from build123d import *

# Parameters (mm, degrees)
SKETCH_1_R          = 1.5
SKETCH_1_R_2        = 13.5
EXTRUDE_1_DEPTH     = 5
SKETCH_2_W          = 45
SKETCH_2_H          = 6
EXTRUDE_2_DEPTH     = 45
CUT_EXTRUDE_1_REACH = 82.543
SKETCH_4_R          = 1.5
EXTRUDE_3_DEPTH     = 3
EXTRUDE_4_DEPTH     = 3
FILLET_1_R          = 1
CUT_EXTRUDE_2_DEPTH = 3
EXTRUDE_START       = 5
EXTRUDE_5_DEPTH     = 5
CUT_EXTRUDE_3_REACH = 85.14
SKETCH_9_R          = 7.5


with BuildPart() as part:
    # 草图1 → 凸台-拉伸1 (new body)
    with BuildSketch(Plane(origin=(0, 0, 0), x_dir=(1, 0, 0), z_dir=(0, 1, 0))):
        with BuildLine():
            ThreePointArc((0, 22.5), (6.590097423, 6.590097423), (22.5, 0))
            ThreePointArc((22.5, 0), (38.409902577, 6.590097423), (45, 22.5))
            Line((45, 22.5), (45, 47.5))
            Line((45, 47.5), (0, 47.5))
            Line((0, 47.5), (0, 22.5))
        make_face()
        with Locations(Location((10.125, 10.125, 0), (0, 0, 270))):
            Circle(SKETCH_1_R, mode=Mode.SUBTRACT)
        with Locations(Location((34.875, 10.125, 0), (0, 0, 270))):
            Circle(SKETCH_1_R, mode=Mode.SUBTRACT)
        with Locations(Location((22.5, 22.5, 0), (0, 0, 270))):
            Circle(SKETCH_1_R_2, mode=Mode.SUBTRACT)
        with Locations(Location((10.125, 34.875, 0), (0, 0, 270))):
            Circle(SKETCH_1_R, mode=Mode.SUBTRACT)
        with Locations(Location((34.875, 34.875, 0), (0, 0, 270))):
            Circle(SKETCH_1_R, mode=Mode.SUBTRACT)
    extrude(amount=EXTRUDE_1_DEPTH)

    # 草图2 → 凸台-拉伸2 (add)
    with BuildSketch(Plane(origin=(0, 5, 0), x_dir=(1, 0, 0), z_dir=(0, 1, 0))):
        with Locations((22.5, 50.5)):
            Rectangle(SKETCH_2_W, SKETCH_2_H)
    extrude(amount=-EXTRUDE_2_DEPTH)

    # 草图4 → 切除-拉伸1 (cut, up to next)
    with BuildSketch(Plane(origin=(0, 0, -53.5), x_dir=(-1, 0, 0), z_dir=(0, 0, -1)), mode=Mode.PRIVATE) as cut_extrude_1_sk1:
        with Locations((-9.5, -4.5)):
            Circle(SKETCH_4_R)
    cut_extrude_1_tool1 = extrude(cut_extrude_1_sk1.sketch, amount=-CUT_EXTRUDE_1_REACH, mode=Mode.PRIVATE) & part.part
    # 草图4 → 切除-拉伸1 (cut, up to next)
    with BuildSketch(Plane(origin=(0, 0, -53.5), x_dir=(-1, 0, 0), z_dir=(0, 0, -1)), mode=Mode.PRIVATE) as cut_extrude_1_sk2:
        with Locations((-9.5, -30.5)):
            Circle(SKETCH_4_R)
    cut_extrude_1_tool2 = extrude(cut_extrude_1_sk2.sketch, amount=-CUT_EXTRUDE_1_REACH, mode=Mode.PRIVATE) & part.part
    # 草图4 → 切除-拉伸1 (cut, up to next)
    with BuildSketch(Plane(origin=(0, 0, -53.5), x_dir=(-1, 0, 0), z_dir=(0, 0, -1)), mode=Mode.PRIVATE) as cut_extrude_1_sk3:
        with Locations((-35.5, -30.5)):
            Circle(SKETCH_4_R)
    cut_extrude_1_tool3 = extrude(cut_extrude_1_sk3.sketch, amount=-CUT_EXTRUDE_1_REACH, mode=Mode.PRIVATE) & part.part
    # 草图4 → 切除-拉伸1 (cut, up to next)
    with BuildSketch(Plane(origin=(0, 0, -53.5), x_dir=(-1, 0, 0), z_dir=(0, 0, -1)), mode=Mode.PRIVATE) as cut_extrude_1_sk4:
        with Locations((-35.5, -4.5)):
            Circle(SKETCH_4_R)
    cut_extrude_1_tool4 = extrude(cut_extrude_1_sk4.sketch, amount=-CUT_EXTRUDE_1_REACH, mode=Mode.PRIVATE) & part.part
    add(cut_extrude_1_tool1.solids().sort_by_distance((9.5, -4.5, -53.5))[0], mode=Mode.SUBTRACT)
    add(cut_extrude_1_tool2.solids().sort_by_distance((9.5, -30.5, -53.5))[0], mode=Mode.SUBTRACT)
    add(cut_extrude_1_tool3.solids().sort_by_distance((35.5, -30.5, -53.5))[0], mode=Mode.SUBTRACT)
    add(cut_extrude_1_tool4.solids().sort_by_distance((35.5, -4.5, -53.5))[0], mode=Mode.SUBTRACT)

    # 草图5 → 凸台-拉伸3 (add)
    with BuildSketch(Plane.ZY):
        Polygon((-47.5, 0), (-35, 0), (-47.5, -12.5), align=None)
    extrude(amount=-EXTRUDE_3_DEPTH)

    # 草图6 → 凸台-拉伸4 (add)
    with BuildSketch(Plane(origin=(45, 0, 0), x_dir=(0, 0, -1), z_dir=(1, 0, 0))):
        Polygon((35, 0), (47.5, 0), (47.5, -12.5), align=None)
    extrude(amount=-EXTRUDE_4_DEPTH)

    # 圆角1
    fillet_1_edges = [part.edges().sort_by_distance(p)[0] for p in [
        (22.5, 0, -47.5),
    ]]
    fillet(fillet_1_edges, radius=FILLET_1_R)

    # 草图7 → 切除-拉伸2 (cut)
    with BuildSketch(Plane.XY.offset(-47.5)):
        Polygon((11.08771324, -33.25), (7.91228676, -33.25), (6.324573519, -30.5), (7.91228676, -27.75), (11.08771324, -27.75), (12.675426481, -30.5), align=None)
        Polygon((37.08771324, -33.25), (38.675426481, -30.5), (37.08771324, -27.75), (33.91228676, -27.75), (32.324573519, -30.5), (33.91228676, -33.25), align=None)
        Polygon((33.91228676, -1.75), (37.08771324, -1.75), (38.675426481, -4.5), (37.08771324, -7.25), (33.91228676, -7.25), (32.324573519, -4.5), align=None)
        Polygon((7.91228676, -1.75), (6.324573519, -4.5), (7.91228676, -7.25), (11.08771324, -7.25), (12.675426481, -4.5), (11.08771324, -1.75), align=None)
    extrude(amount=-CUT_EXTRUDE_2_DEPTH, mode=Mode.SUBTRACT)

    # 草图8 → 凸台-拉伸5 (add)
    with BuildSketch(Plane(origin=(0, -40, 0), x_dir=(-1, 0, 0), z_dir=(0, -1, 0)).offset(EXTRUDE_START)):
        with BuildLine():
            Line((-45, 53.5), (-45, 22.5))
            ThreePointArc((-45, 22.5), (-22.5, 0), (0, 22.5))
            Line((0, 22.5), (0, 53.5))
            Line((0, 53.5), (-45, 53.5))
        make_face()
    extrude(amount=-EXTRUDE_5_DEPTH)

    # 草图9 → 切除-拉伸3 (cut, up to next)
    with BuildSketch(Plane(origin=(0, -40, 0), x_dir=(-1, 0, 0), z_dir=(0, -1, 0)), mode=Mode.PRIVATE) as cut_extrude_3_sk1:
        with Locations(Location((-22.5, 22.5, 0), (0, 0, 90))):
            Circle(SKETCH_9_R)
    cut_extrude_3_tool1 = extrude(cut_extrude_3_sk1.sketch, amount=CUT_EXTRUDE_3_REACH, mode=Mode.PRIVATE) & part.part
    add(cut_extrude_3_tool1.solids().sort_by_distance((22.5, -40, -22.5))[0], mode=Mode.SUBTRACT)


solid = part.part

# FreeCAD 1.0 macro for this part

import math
import FreeCAD as App
import Part
import Sketcher

V = App.Vector
Q = App.Units.Quantity


def edges_at(feature, points):
    """Names of the edges that pass closest to the given points."""
    edges = feature.Shape.Edges
    near = lambda p: min(range(len(edges)), key=lambda i: edges[i].distToShape(Part.Vertex(*p))[0])
    return sorted({f"Edge{near(p) + 1}" for p in points})

doc = App.newDocument("Part")
params = doc.addObject("Spreadsheet::Sheet", "Params")
for row, (alias, value) in enumerate([
    ("sketch1_diameter", "3 mm"),
    ("sketch1_diameter2", "27 mm"),
    ("sketch1_radius", "22.5 mm"),
    ("sketch1_height", "25 mm"),
    ("pad1_length", "5 mm"),
    ("sketch2_width", "45 mm"),
    ("sketch2_height", "6 mm"),
    ("pad2_length", "45 mm"),
    ("sketch3_diameter", "3 mm"),
    ("sketch4_diameter", "3 mm"),
    ("sketch5_diameter", "3 mm"),
    ("sketch6_diameter", "3 mm"),
    ("sketch7_width", "12.5 mm"),
    ("pad3_length", "3 mm"),
    ("sketch8_width", "12.5 mm"),
    ("pad4_length", "3 mm"),
    ("fillet_radius", "1 mm"),
    ("pocket5_length", "3 mm"),
    ("sketch10_radius", "22.5 mm"),
    ("sketch10_height", "31 mm"),
    ("pad5_length", "5 mm"),
    ("sketch11_diameter", "15 mm"),
], start=1):
    params.set(f"A{row}", alias)
    params.set(f"B{row}", "=" + value)
    params.setAlias(f"B{row}", alias)

body = doc.addObject("PartDesign::Body", "Body")

# Sketch on XZ plane
sketch1 = doc.addObject("Sketcher::SketchObject", "Sketch")
body.addObject(sketch1)
sketch1.AttachmentSupport = (doc.XZ_Plane, [""])
sketch1.MapMode = "FlatFace"
sketch1.addGeometry(Part.ArcOfCircle(Part.Circle(V(22.5, -22.5, 0), V(0, 0, 1), 22.5), math.radians(90), math.radians(180)), False)
sketch1.addGeometry(Part.ArcOfCircle(Part.Circle(V(22.5, -22.5, 0), V(0, 0, 1), 22.5), math.radians(0), math.radians(90)), False)
sketch1.addGeometry(Part.LineSegment(V(45, -22.5, 0), V(45, -47.5, 0)), False)
sketch1.addGeometry(Part.LineSegment(V(45, -47.5, 0), V(0, -47.5, 0)), False)
sketch1.addGeometry(Part.LineSegment(V(0, -47.5, 0), V(0, -22.5, 0)), False)
sketch1.addGeometry(Part.Circle(V(10.1, -10.1, 0), V(0, 0, 1), 1.5), False)
sketch1.addGeometry(Part.Circle(V(34.9, -10.1, 0), V(0, 0, 1), 1.5), False)
sketch1.addGeometry(Part.Circle(V(10.1, -34.9, 0), V(0, 0, 1), 1.5), False)
sketch1.addGeometry(Part.Circle(V(22.5, -22.5, 0), V(0, 0, 1), 13.5), False)
sketch1.addGeometry(Part.Circle(V(34.9, -34.9, 0), V(0, 0, 1), 1.5), False)
sketch1.addConstraint(Sketcher.Constraint("Tangent", 0, 1, 1, 2))
sketch1.addConstraint(Sketcher.Constraint("Tangent", 1, 1, 2, 1))
sketch1.addConstraint(Sketcher.Constraint("Coincident", 2, 2, 3, 1))
sketch1.addConstraint(Sketcher.Constraint("Coincident", 3, 2, 4, 1))
sketch1.addConstraint(Sketcher.Constraint("Tangent", 4, 2, 0, 2))
sketch1.addConstraint(Sketcher.Constraint("Vertical", 2))
sketch1.addConstraint(Sketcher.Constraint("Horizontal", 3))
sketch1.addConstraint(Sketcher.Constraint("Vertical", 4))
sketch1.addConstraint(Sketcher.Constraint("Coincident", 8, 3, 0, 3))
sketch1.addConstraint(Sketcher.Constraint("Equal", 0, 1))
sketch1.addConstraint(Sketcher.Constraint("Equal", 5, 6))
sketch1.addConstraint(Sketcher.Constraint("Equal", 6, 7))
sketch1.addConstraint(Sketcher.Constraint("Equal", 7, 9))
sketch1.addConstraint(Sketcher.Constraint("PointOnObject", 0, 1, -1))
sketch1.addConstraint(Sketcher.Constraint("PointOnObject", 3, 2, -2))
sketch1.addConstraint(Sketcher.Constraint("Horizontal", 5, 3, 6, 3))
sketch1.addConstraint(Sketcher.Constraint("Horizontal", 7, 3, 9, 3))
sketch1.addConstraint(Sketcher.Constraint("Vertical", 5, 3, 7, 3))
sketch1.addConstraint(Sketcher.Constraint("Vertical", 6, 3, 9, 3))
sketch1.addConstraint(Sketcher.Constraint("Vertical", 8, 3, 0, 1))
sketch1.addConstraint(Sketcher.Constraint("Diameter", 5, Q("3 mm")))
sketch1.addConstraint(Sketcher.Constraint("Diameter", 8, Q("27 mm")))
sketch1.addConstraint(Sketcher.Constraint("Radius", 0, Q("22.5 mm")))
sketch1.addConstraint(Sketcher.Constraint("DistanceY", 2, 2, 2, 1, Q("25 mm")))
sketch1.addConstraint(Sketcher.Constraint("DistanceX", 5, 3, 6, 3, Q("24.75 mm")))
sketch1.addConstraint(Sketcher.Constraint("DistanceY", 7, 3, 5, 3, Q("24.75 mm")))
sketch1.addConstraint(Sketcher.Constraint("DistanceX", -1, 1, 5, 3, Q("10.125 mm")))
sketch1.addConstraint(Sketcher.Constraint("DistanceY", 5, 3, -1, 1, Q("10.125 mm")))
sketch1.setExpression("Constraints[20]", "Params.sketch1_diameter")
sketch1.setExpression("Constraints[21]", "Params.sketch1_diameter2")
sketch1.setExpression("Constraints[22]", "Params.sketch1_radius")
sketch1.setExpression("Constraints[23]", "Params.sketch1_height")
pad1 = doc.addObject("PartDesign::Pad", "Pad")
body.addObject(pad1)
pad1.Profile = sketch1
pad1.setExpression("Length", "Params.pad1_length")
pad1.Reversed = True

# Sketch on XZ plane
sketch2 = doc.addObject("Sketcher::SketchObject", "Sketch001")
body.addObject(sketch2)
sketch2.AttachmentSupport = (doc.XZ_Plane, [""])
sketch2.MapMode = "FlatFace"
sketch2.AttachmentOffset = App.Placement(V(0, 0, -5), App.Rotation())
sketch2.addGeometry(Part.LineSegment(V(0, -54, 0), V(0, -48, 0)), False)
sketch2.addGeometry(Part.LineSegment(V(0, -48, 0), V(45, -48, 0)), False)
sketch2.addGeometry(Part.LineSegment(V(45, -48, 0), V(45, -54, 0)), False)
sketch2.addGeometry(Part.LineSegment(V(45, -54, 0), V(0, -54, 0)), False)
sketch2.addConstraint(Sketcher.Constraint("Coincident", 0, 2, 1, 1))
sketch2.addConstraint(Sketcher.Constraint("Coincident", 1, 2, 2, 1))
sketch2.addConstraint(Sketcher.Constraint("Coincident", 2, 2, 3, 1))
sketch2.addConstraint(Sketcher.Constraint("Coincident", 3, 2, 0, 1))
sketch2.addConstraint(Sketcher.Constraint("Vertical", 0))
sketch2.addConstraint(Sketcher.Constraint("Horizontal", 1))
sketch2.addConstraint(Sketcher.Constraint("Vertical", 2))
sketch2.addConstraint(Sketcher.Constraint("Horizontal", 3))
sketch2.addConstraint(Sketcher.Constraint("PointOnObject", 0, 2, -2))
sketch2.addConstraint(Sketcher.Constraint("DistanceX", 1, 1, 1, 2, Q("45 mm")))
sketch2.addConstraint(Sketcher.Constraint("DistanceY", 0, 1, 0, 2, Q("6 mm")))
sketch2.addConstraint(Sketcher.Constraint("DistanceY", 0, 2, -1, 1, Q("47.5 mm")))
sketch2.setExpression("Constraints[9]", "Params.sketch2_width")
sketch2.setExpression("Constraints[10]", "Params.sketch2_height")
pad2 = doc.addObject("PartDesign::Pad", "Pad001")
body.addObject(pad2)
pad2.Profile = sketch2
pad2.setExpression("Length", "Params.pad2_length")

# Sketch on XY plane
sketch3 = doc.addObject("Sketcher::SketchObject", "Sketch002")
body.addObject(sketch3)
sketch3.AttachmentSupport = (doc.XY_Plane, [""])
sketch3.MapMode = "FlatFace"
sketch3.AttachmentOffset = App.Placement(V(0, 0, -53.5), App.Rotation())
sketch3.addGeometry(Part.Circle(V(9.5, -4.5, 0), V(0, 0, 1), 1.5), False)
sketch3.addConstraint(Sketcher.Constraint("Diameter", 0, Q("3 mm")))
sketch3.addConstraint(Sketcher.Constraint("DistanceX", -1, 1, 0, 3, Q("9.5 mm")))
sketch3.addConstraint(Sketcher.Constraint("DistanceY", 0, 3, -1, 1, Q("4.5 mm")))
sketch3.setExpression("Constraints[0]", "Params.sketch3_diameter")
pocket1 = doc.addObject("PartDesign::Pocket", "Pocket")
body.addObject(pocket1)
pocket1.Profile = sketch3
pocket1.Type = "UpToFirst"
pocket1.Reversed = True

# Sketch on XY plane
sketch4 = doc.addObject("Sketcher::SketchObject", "Sketch003")
body.addObject(sketch4)
sketch4.AttachmentSupport = (doc.XY_Plane, [""])
sketch4.MapMode = "FlatFace"
sketch4.AttachmentOffset = App.Placement(V(0, 0, -53.5), App.Rotation())
sketch4.addGeometry(Part.Circle(V(9.5, -30.5, 0), V(0, 0, 1), 1.5), False)
sketch4.addConstraint(Sketcher.Constraint("Diameter", 0, Q("3 mm")))
sketch4.addConstraint(Sketcher.Constraint("DistanceX", -1, 1, 0, 3, Q("9.5 mm")))
sketch4.addConstraint(Sketcher.Constraint("DistanceY", 0, 3, -1, 1, Q("30.5 mm")))
sketch4.setExpression("Constraints[0]", "Params.sketch4_diameter")
pocket2 = doc.addObject("PartDesign::Pocket", "Pocket001")
body.addObject(pocket2)
pocket2.Profile = sketch4
pocket2.Type = "UpToFirst"
pocket2.Reversed = True

# Sketch on XY plane
sketch5 = doc.addObject("Sketcher::SketchObject", "Sketch004")
body.addObject(sketch5)
sketch5.AttachmentSupport = (doc.XY_Plane, [""])
sketch5.MapMode = "FlatFace"
sketch5.AttachmentOffset = App.Placement(V(0, 0, -53.5), App.Rotation())
sketch5.addGeometry(Part.Circle(V(35.5, -30.5, 0), V(0, 0, 1), 1.5), False)
sketch5.addConstraint(Sketcher.Constraint("Diameter", 0, Q("3 mm")))
sketch5.addConstraint(Sketcher.Constraint("DistanceX", -1, 1, 0, 3, Q("35.5 mm")))
sketch5.addConstraint(Sketcher.Constraint("DistanceY", 0, 3, -1, 1, Q("30.5 mm")))
sketch5.setExpression("Constraints[0]", "Params.sketch5_diameter")
pocket3 = doc.addObject("PartDesign::Pocket", "Pocket002")
body.addObject(pocket3)
pocket3.Profile = sketch5
pocket3.Type = "UpToFirst"
pocket3.Reversed = True

# Sketch on XY plane
sketch6 = doc.addObject("Sketcher::SketchObject", "Sketch005")
body.addObject(sketch6)
sketch6.AttachmentSupport = (doc.XY_Plane, [""])
sketch6.MapMode = "FlatFace"
sketch6.AttachmentOffset = App.Placement(V(0, 0, -53.5), App.Rotation())
sketch6.addGeometry(Part.Circle(V(35.5, -4.5, 0), V(0, 0, 1), 1.5), False)
sketch6.addConstraint(Sketcher.Constraint("Diameter", 0, Q("3 mm")))
sketch6.addConstraint(Sketcher.Constraint("DistanceX", -1, 1, 0, 3, Q("35.5 mm")))
sketch6.addConstraint(Sketcher.Constraint("DistanceY", 0, 3, -1, 1, Q("4.5 mm")))
sketch6.setExpression("Constraints[0]", "Params.sketch6_diameter")
pocket4 = doc.addObject("PartDesign::Pocket", "Pocket003")
body.addObject(pocket4)
pocket4.Profile = sketch6
pocket4.Type = "UpToFirst"
pocket4.Reversed = True

# Sketch on YZ plane
sketch7 = doc.addObject("Sketcher::SketchObject", "Sketch006")
body.addObject(sketch7)
sketch7.AttachmentSupport = (doc.YZ_Plane, [""])
sketch7.MapMode = "FlatFace"
sketch7.addGeometry(Part.LineSegment(V(0, -35, 0), V(0, -48, 0)), False)
sketch7.addGeometry(Part.LineSegment(V(0, -48, 0), V(-12, -48, 0)), False)
sketch7.addGeometry(Part.LineSegment(V(-12, -48, 0), V(0, -35, 0)), False)
sketch7.addConstraint(Sketcher.Constraint("Coincident", 0, 2, 1, 1))
sketch7.addConstraint(Sketcher.Constraint("Coincident", 1, 2, 2, 1))
sketch7.addConstraint(Sketcher.Constraint("Coincident", 2, 2, 0, 1))
sketch7.addConstraint(Sketcher.Constraint("Vertical", 0))
sketch7.addConstraint(Sketcher.Constraint("Horizontal", 1))
sketch7.addConstraint(Sketcher.Constraint("PointOnObject", 0, 2, -2))
sketch7.addConstraint(Sketcher.Constraint("Equal", 1, 0))
sketch7.addConstraint(Sketcher.Constraint("DistanceX", 1, 2, 1, 1, Q("12.5 mm")))
sketch7.addConstraint(Sketcher.Constraint("DistanceY", 2, 2, -1, 1, Q("35 mm")))
sketch7.setExpression("Constraints[7]", "Params.sketch7_width")
pad3 = doc.addObject("PartDesign::Pad", "Pad002")
body.addObject(pad3)
pad3.Profile = sketch7
pad3.setExpression("Length", "Params.pad3_length")

# Sketch on YZ plane
sketch8 = doc.addObject("Sketcher::SketchObject", "Sketch007")
body.addObject(sketch8)
sketch8.AttachmentSupport = (doc.YZ_Plane, [""])
sketch8.MapMode = "FlatFace"
sketch8.AttachmentOffset = App.Placement(V(0, 0, 45), App.Rotation())
sketch8.addGeometry(Part.LineSegment(V(0, -48, 0), V(0, -35, 0)), False)
sketch8.addGeometry(Part.LineSegment(V(0, -35, 0), V(-12, -48, 0)), False)
sketch8.addGeometry(Part.LineSegment(V(-12, -48, 0), V(0, -48, 0)), False)
sketch8.addConstraint(Sketcher.Constraint("Coincident", 0, 2, 1, 1))
sketch8.addConstraint(Sketcher.Constraint("Coincident", 1, 2, 2, 1))
sketch8.addConstraint(Sketcher.Constraint("Coincident", 2, 2, 0, 1))
sketch8.addConstraint(Sketcher.Constraint("Vertical", 0))
sketch8.addConstraint(Sketcher.Constraint("Horizontal", 2))
sketch8.addConstraint(Sketcher.Constraint("PointOnObject", 0, 2, -2))
sketch8.addConstraint(Sketcher.Constraint("Equal", 2, 0))
sketch8.addConstraint(Sketcher.Constraint("DistanceX", 2, 1, 2, 2, Q("12.5 mm")))
sketch8.addConstraint(Sketcher.Constraint("DistanceY", 0, 2, -1, 1, Q("35 mm")))
sketch8.setExpression("Constraints[7]", "Params.sketch8_width")
pad4 = doc.addObject("PartDesign::Pad", "Pad003")
body.addObject(pad4)
pad4.Profile = sketch8
pad4.setExpression("Length", "Params.pad4_length")
pad4.Reversed = True
doc.recompute()

fillet = doc.addObject("PartDesign::Fillet", "Fillet")
body.addObject(fillet)
fillet.Base = (pad4, edges_at(pad4, [(22.5, 0, -47.5)]))
fillet.setExpression("Radius", "Params.fillet_radius")

# Sketch on XY plane
sketch9 = doc.addObject("Sketcher::SketchObject", "Sketch008")
body.addObject(sketch9)
sketch9.AttachmentSupport = (doc.XY_Plane, [""])
sketch9.MapMode = "FlatFace"
sketch9.AttachmentOffset = App.Placement(V(0, 0, -47.5), App.Rotation())
sketch9.addGeometry(Part.LineSegment(V(7.9, -33.2, 0), V(11.1, -33.2, 0)), False)
sketch9.addGeometry(Part.LineSegment(V(11.1, -33.2, 0), V(12.7, -30.5, 0)), False)
sketch9.addGeometry(Part.LineSegment(V(12.7, -30.5, 0), V(11.1, -27.8, 0)), False)
sketch9.addGeometry(Part.LineSegment(V(11.1, -27.8, 0), V(7.9, -27.8, 0)), False)
sketch9.addGeometry(Part.LineSegment(V(7.9, -27.8, 0), V(6.3, -30.5, 0)), False)
sketch9.addGeometry(Part.LineSegment(V(6.3, -30.5, 0), V(7.9, -33.2, 0)), False)
sketch9.addGeometry(Part.LineSegment(V(37.1, -33.2, 0), V(38.7, -30.5, 0)), False)
sketch9.addGeometry(Part.LineSegment(V(38.7, -30.5, 0), V(37.1, -27.8, 0)), False)
sketch9.addGeometry(Part.LineSegment(V(37.1, -27.8, 0), V(33.9, -27.8, 0)), False)
sketch9.addGeometry(Part.LineSegment(V(33.9, -27.8, 0), V(32.3, -30.5, 0)), False)
sketch9.addGeometry(Part.LineSegment(V(32.3, -30.5, 0), V(33.9, -33.2, 0)), False)
sketch9.addGeometry(Part.LineSegment(V(33.9, -33.2, 0), V(37.1, -33.2, 0)), False)
sketch9.addGeometry(Part.LineSegment(V(37.1, -1.8, 0), V(33.9, -1.8, 0)), False)
sketch9.addGeometry(Part.LineSegment(V(33.9, -1.8, 0), V(32.3, -4.5, 0)), False)
sketch9.addGeometry(Part.LineSegment(V(32.3, -4.5, 0), V(33.9, -7.2, 0)), False)
sketch9.addGeometry(Part.LineSegment(V(33.9, -7.2, 0), V(37.1, -7.2, 0)), False)
sketch9.addGeometry(Part.LineSegment(V(37.1, -7.2, 0), V(38.7, -4.5, 0)), False)
sketch9.addGeometry(Part.LineSegment(V(38.7, -4.5, 0), V(37.1, -1.8, 0)), False)
sketch9.addGeometry(Part.LineSegment(V(7.9, -1.8, 0), V(6.3, -4.5, 0)), False)
sketch9.addGeometry(Part.LineSegment(V(6.3, -4.5, 0), V(7.9, -7.2, 0)), False)
sketch9.addGeometry(Part.LineSegment(V(7.9, -7.2, 0), V(11.1, -7.2, 0)), False)
sketch9.addGeometry(Part.LineSegment(V(11.1, -7.2, 0), V(12.7, -4.5, 0)), False)
sketch9.addGeometry(Part.LineSegment(V(12.7, -4.5, 0), V(11.1, -1.8, 0)), False)
sketch9.addGeometry(Part.LineSegment(V(11.1, -1.8, 0), V(7.9, -1.8, 0)), False)
sketch9.addConstraint(Sketcher.Constraint("Coincident", 0, 2, 1, 1))
sketch9.addConstraint(Sketcher.Constraint("Coincident", 1, 2, 2, 1))
sketch9.addConstraint(Sketcher.Constraint("Coincident", 2, 2, 3, 1))
sketch9.addConstraint(Sketcher.Constraint("Coincident", 3, 2, 4, 1))
sketch9.addConstraint(Sketcher.Constraint("Coincident", 4, 2, 5, 1))
sketch9.addConstraint(Sketcher.Constraint("Coincident", 5, 2, 0, 1))
sketch9.addConstraint(Sketcher.Constraint("Coincident", 6, 2, 7, 1))
sketch9.addConstraint(Sketcher.Constraint("Coincident", 7, 2, 8, 1))
sketch9.addConstraint(Sketcher.Constraint("Coincident", 8, 2, 9, 1))
sketch9.addConstraint(Sketcher.Constraint("Coincident", 9, 2, 10, 1))
sketch9.addConstraint(Sketcher.Constraint("Coincident", 10, 2, 11, 1))
sketch9.addConstraint(Sketcher.Constraint("Coincident", 11, 2, 6, 1))
sketch9.addConstraint(Sketcher.Constraint("Coincident", 12, 2, 13, 1))
sketch9.addConstraint(Sketcher.Constraint("Coincident", 13, 2, 14, 1))
sketch9.addConstraint(Sketcher.Constraint("Coincident", 14, 2, 15, 1))
sketch9.addConstraint(Sketcher.Constraint("Coincident", 15, 2, 16, 1))
sketch9.addConstraint(Sketcher.Constraint("Coincident", 16, 2, 17, 1))
sketch9.addConstraint(Sketcher.Constraint("Coincident", 17, 2, 12, 1))
sketch9.addConstraint(Sketcher.Constraint("Coincident", 18, 2, 19, 1))
sketch9.addConstraint(Sketcher.Constraint("Coincident", 19, 2, 20, 1))
sketch9.addConstraint(Sketcher.Constraint("Coincident", 20, 2, 21, 1))
sketch9.addConstraint(Sketcher.Constraint("Coincident", 21, 2, 22, 1))
sketch9.addConstraint(Sketcher.Constraint("Coincident", 22, 2, 23, 1))
sketch9.addConstraint(Sketcher.Constraint("Coincident", 23, 2, 18, 1))
sketch9.addConstraint(Sketcher.Constraint("Horizontal", 0))
sketch9.addConstraint(Sketcher.Constraint("Horizontal", 3))
sketch9.addConstraint(Sketcher.Constraint("Horizontal", 8))
sketch9.addConstraint(Sketcher.Constraint("Horizontal", 11))
sketch9.addConstraint(Sketcher.Constraint("Horizontal", 12))
sketch9.addConstraint(Sketcher.Constraint("Horizontal", 15))
sketch9.addConstraint(Sketcher.Constraint("Horizontal", 20))
sketch9.addConstraint(Sketcher.Constraint("Horizontal", 23))
sketch9.addConstraint(Sketcher.Constraint("Parallel", 1, 4))
sketch9.addConstraint(Sketcher.Constraint("Parallel", 2, 5))
sketch9.addConstraint(Sketcher.Constraint("Parallel", 4, 6))
sketch9.addConstraint(Sketcher.Constraint("Parallel", 5, 7))
sketch9.addConstraint(Sketcher.Constraint("Parallel", 6, 9))
sketch9.addConstraint(Sketcher.Constraint("Parallel", 7, 10))
sketch9.addConstraint(Sketcher.Constraint("Parallel", 9, 13))
sketch9.addConstraint(Sketcher.Constraint("Parallel", 10, 14))
sketch9.addConstraint(Sketcher.Constraint("Parallel", 13, 16))
sketch9.addConstraint(Sketcher.Constraint("Parallel", 14, 17))
sketch9.addConstraint(Sketcher.Constraint("Parallel", 16, 18))
sketch9.addConstraint(Sketcher.Constraint("Parallel", 17, 19))
sketch9.addConstraint(Sketcher.Constraint("Parallel", 18, 21))
sketch9.addConstraint(Sketcher.Constraint("Parallel", 19, 22))
sketch9.addConstraint(Sketcher.Constraint("Horizontal", 1, 2, 4, 2))
sketch9.addConstraint(Sketcher.Constraint("Horizontal", 4, 2, 6, 2))
sketch9.addConstraint(Sketcher.Constraint("Horizontal", 3, 2, 7, 2))
sketch9.addConstraint(Sketcher.Constraint("Horizontal", 6, 2, 9, 2))
sketch9.addConstraint(Sketcher.Constraint("Horizontal", 5, 2, 10, 2))
sketch9.addConstraint(Sketcher.Constraint("Horizontal", 13, 2, 16, 2))
sketch9.addConstraint(Sketcher.Constraint("Horizontal", 16, 2, 18, 2))
sketch9.addConstraint(Sketcher.Constraint("Horizontal", 15, 2, 19, 2))
sketch9.addConstraint(Sketcher.Constraint("Horizontal", 18, 2, 21, 2))
sketch9.addConstraint(Sketcher.Constraint("Horizontal", 17, 2, 22, 2))
sketch9.addConstraint(Sketcher.Constraint("Vertical", 0, 2, 2, 2))
sketch9.addConstraint(Sketcher.Constraint("Vertical", 3, 2, 5, 2))
sketch9.addConstraint(Sketcher.Constraint("Vertical", 10, 2, 12, 2))
sketch9.addConstraint(Sketcher.Constraint("Vertical", 9, 2, 13, 2))
sketch9.addConstraint(Sketcher.Constraint("Vertical", 12, 2, 14, 2))
sketch9.addConstraint(Sketcher.Constraint("Vertical", 11, 2, 15, 2))
sketch9.addConstraint(Sketcher.Constraint("Vertical", 4, 2, 18, 2))
sketch9.addConstraint(Sketcher.Constraint("Vertical", 2, 2, 20, 2))
sketch9.addConstraint(Sketcher.Constraint("Equal", 3, 8))
sketch9.addConstraint(Sketcher.Constraint("Angle", 1, Q("60 deg")))
sketch9.addConstraint(Sketcher.Constraint("DistanceX", 1, 2, 6, 2, Q("26 mm")))
sketch9.addConstraint(Sketcher.Constraint("DistanceY", 8, 2, 12, 2, Q("26 mm")))
sketch9.addConstraint(Sketcher.Constraint("DistanceY", 1, 2, -1, 1, Q("30.5 mm")))
sketch9.addConstraint(Sketcher.Constraint("DistanceY", 0, 2, 2, 2, Q("5.5 mm")))
sketch9.addConstraint(Sketcher.Constraint("DistanceX", 0, 1, 0, 2, Q("3.175426 mm")))
sketch9.addConstraint(Sketcher.Constraint("DistanceX", -1, 1, 0, 2, Q("11.087713 mm")))
pocket5 = doc.addObject("PartDesign::Pocket", "Pocket004")
body.addObject(pocket5)
pocket5.Profile = sketch9
pocket5.setExpression("Length", "Params.pocket5_length")

# Sketch on XZ plane
sketch10 = doc.addObject("Sketcher::SketchObject", "Sketch009")
body.addObject(sketch10)
sketch10.AttachmentSupport = (doc.XZ_Plane, [""])
sketch10.MapMode = "FlatFace"
sketch10.AttachmentOffset = App.Placement(V(0, 0, 45), App.Rotation())
sketch10.addGeometry(Part.LineSegment(V(45, -54, 0), V(45, -22, 0)), False)
sketch10.addGeometry(Part.ArcOfCircle(Part.Circle(V(22, -22, 0), V(0, 0, 1), 22), math.radians(0), math.radians(180)), False)
sketch10.addGeometry(Part.LineSegment(V(0, -22, 0), V(0, -54, 0)), False)
sketch10.addGeometry(Part.LineSegment(V(0, -54, 0), V(45, -54, 0)), False)
sketch10.addConstraint(Sketcher.Constraint("Tangent", 0, 2, 1, 1))
sketch10.addConstraint(Sketcher.Constraint("Tangent", 1, 2, 2, 1))
sketch10.addConstraint(Sketcher.Constraint("Coincident", 2, 2, 3, 1))
sketch10.addConstraint(Sketcher.Constraint("Coincident", 3, 2, 0, 1))
sketch10.addConstraint(Sketcher.Constraint("Vertical", 0))
sketch10.addConstraint(Sketcher.Constraint("Vertical", 2))
sketch10.addConstraint(Sketcher.Constraint("Horizontal", 3))
sketch10.addConstraint(Sketcher.Constraint("PointOnObject", 1, 2, -2))
sketch10.addConstraint(Sketcher.Constraint("Radius", 1, Q("22.5 mm")))
sketch10.addConstraint(Sketcher.Constraint("DistanceY", 0, 1, 0, 2, Q("31 mm")))
sketch10.addConstraint(Sketcher.Constraint("DistanceY", 1, 3, -1, 1, Q("22.5 mm")))
sketch10.setExpression("Constraints[8]", "Params.sketch10_radius")
sketch10.setExpression("Constraints[9]", "Params.sketch10_height")
pad5 = doc.addObject("PartDesign::Pad", "Pad004")
body.addObject(pad5)
pad5.Profile = sketch10
pad5.setExpression("Length", "Params.pad5_length")
pad5.Reversed = True

# Sketch on XZ plane
sketch11 = doc.addObject("Sketcher::SketchObject", "Sketch010")
body.addObject(sketch11)
sketch11.AttachmentSupport = (doc.XZ_Plane, [""])
sketch11.MapMode = "FlatFace"
sketch11.AttachmentOffset = App.Placement(V(0, 0, 40), App.Rotation())
sketch11.addGeometry(Part.Circle(V(22, -22, 0), V(0, 0, 1), 8), False)
sketch11.addConstraint(Sketcher.Constraint("Diameter", 0, Q("15 mm")))
sketch11.addConstraint(Sketcher.Constraint("DistanceX", -1, 1, 0, 3, Q("22.5 mm")))
sketch11.addConstraint(Sketcher.Constraint("DistanceY", 0, 3, -1, 1, Q("22.5 mm")))
sketch11.setExpression("Constraints[0]", "Params.sketch11_diameter")
pocket6 = doc.addObject("PartDesign::Pocket", "Pocket005")
body.addObject(pocket6)
pocket6.Profile = sketch11
pocket6.Type = "UpToFirst"
pocket6.Reversed = True

doc.recompute()
